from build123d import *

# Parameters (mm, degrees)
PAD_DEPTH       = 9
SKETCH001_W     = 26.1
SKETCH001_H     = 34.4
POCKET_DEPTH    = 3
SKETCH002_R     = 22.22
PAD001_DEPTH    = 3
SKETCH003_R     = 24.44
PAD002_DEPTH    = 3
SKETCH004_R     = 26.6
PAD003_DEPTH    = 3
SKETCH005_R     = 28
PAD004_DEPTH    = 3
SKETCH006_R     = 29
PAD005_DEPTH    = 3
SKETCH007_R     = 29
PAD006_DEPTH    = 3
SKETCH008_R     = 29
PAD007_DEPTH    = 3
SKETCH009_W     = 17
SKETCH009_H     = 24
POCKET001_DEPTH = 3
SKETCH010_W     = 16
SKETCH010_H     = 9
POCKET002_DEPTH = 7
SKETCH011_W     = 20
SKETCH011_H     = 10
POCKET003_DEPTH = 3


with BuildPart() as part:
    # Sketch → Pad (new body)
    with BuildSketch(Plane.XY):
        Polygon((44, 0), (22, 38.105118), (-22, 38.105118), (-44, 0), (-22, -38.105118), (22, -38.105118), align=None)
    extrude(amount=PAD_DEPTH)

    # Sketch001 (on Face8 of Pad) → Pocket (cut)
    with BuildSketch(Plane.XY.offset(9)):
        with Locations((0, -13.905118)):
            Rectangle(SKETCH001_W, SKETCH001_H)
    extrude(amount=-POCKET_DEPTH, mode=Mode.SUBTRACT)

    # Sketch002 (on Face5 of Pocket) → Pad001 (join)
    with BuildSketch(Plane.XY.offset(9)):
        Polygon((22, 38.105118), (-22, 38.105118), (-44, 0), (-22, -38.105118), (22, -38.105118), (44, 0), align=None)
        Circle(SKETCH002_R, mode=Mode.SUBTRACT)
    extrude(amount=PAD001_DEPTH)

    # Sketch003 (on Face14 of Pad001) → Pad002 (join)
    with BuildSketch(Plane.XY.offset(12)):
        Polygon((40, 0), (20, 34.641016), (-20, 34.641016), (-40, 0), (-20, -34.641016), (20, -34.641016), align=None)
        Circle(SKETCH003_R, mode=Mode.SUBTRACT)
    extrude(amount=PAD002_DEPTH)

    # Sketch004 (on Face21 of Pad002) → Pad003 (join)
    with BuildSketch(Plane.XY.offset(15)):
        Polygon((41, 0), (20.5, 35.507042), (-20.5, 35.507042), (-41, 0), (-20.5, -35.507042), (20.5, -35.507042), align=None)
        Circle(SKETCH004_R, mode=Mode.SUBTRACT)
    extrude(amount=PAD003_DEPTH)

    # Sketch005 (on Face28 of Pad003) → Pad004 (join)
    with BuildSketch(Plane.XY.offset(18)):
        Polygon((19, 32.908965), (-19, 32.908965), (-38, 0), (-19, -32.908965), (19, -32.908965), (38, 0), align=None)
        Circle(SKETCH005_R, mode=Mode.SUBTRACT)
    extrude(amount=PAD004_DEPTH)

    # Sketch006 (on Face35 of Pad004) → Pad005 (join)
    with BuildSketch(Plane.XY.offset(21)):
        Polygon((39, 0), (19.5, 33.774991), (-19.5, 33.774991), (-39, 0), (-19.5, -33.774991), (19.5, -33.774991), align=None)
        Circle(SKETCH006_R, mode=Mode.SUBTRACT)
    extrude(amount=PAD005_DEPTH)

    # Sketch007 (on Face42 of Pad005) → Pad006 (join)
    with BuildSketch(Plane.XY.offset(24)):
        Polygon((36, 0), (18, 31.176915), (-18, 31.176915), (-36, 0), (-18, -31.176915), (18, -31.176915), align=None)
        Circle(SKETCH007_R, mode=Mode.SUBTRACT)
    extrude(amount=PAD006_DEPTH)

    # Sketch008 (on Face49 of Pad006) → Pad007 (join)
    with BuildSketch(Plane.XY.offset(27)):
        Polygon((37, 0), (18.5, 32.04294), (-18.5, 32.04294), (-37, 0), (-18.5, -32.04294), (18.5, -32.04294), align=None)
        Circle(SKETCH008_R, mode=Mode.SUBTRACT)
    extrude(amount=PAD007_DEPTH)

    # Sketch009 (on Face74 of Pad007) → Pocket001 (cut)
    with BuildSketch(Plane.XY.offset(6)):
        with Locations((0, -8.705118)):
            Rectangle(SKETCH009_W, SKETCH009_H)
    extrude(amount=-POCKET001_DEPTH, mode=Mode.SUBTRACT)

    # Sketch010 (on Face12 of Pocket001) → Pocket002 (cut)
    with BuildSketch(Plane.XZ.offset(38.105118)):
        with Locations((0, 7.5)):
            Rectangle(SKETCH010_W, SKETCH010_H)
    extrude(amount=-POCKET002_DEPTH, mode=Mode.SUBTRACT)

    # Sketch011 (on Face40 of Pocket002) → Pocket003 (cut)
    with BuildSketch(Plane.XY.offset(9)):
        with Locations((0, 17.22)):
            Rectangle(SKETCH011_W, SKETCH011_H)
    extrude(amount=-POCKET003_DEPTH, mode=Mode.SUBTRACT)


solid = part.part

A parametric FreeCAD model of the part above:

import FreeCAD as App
import Part
import Sketcher
Q = App.Units.Quantity

doc = App.newDocument("Part")
params = doc.addObject("Spreadsheet::Sheet", "Params")
for row, (alias, value) in enumerate([
    ("sketch1_width", "44 mm"),
    ("sketch1_length", "44 mm"),
    ("pad1_length", "9 mm"),
    ("sketch2_width", "26.1 mm"),
    ("sketch2_height", "34.4 mm"),
    ("pocket1_length", "3 mm"),
    ("sketch3_diameter", "44.44 mm"),
    ("sketch3_width", "44 mm"),
    ("sketch3_length", "44 mm"),
    ("pad2_length", "3 mm"),
    ("sketch4_diameter", "48.88 mm"),
    ("sketch4_width", "40 mm"),
    ("sketch4_length", "40 mm"),
    ("pad3_length", "3 mm"),
    ("sketch5_diameter", "53.2 mm"),
    ("sketch5_width", "41 mm"),
    ("sketch5_length", "41 mm"),
    ("pad4_length", "3 mm"),
    ("sketch6_diameter", "56 mm"),
    ("sketch6_width", "38 mm"),
    ("sketch6_length", "38 mm"),
    ("pad5_length", "3 mm"),
    ("sketch7_diameter", "58 mm"),
    ("sketch7_width", "39 mm"),
    ("sketch7_length", "39 mm"),
    ("pad6_length", "3 mm"),
    ("sketch8_diameter", "58 mm"),
    ("sketch8_width", "36 mm"),
    ("sketch8_length", "36 mm"),
    ("pad7_length", "3 mm"),
    ("sketch9_diameter", "58 mm"),
    ("sketch9_width", "37 mm"),
    ("sketch9_length", "37 mm"),
    ("pad8_length", "3 mm"),
    ("sketch10_width", "17 mm"),
    ("sketch10_height", "24 mm"),
    ("pocket2_length", "3 mm"),
    ("sketch11_width", "16 mm"),
    ("sketch11_height", "9 mm"),
    ("pocket3_length", "7 mm"),
    ("sketch12_width", "20 mm"),
    ("sketch12_height", "10 mm"),
    ("pocket4_length", "3 mm"),
], start=1):
    params.set(f"A{row}", alias)
    params.set(f"B{row}", "=" + value)
    params.setAlias(f"B{row}", alias)

body = doc.addObject("PartDesign::Body", "Body")

sketch1 = body.newObject("Sketcher::SketchObject", "Sketch")
sketch1.AttachmentSupport = (doc.getObject("XY_Plane"), [""])
sketch1.MapMode = "FlatFace"
sketch1.addGeometry([
    Part.LineSegment(App.Vector(44, 0, 0), App.Vector(22, 38, 0)),
    Part.LineSegment(App.Vector(22, 38, 0), App.Vector(-22, 38, 0)),
    Part.LineSegment(App.Vector(-22, 38, 0), App.Vector(-44, 0, 0)),
    Part.LineSegment(App.Vector(-44, 0, 0), App.Vector(-22, -38, 0)),
    Part.LineSegment(App.Vector(-22, -38, 0), App.Vector(22, -38, 0)),
    Part.LineSegment(App.Vector(22, -38, 0), App.Vector(44, 0, 0)),
], False)
sketch1.addConstraint([
    Sketcher.Constraint("Coincident", 0, 2, 1, 1),
    Sketcher.Constraint("Coincident", 1, 2, 2, 1),
    Sketcher.Constraint("Coincident", 2, 2, 3, 1),
    Sketcher.Constraint("Coincident", 3, 2, 4, 1),
    Sketcher.Constraint("Coincident", 4, 2, 5, 1),
    Sketcher.Constraint("Coincident", 5, 2, 0, 1),
    Sketcher.Constraint("Horizontal", 1),
    Sketcher.Constraint("Horizontal", 4),
    Sketcher.Constraint("Symmetric", 0, 2, 3, 2, -1, 1),
    Sketcher.Constraint("Symmetric", 2, 2, 5, 2, -1, 1),
    Sketcher.Constraint("PointOnObject", 2, 2, -1),
    Sketcher.Constraint("Parallel", 2, 5),
    Sketcher.Constraint("Vertical", 1, 2, 3, 2),
    Sketcher.Constraint("DistanceX", 1, 2, 1, 1, Q("44 mm")),
    Sketcher.Constraint("Angle", 0, Q("120 deg")),
    Sketcher.Constraint("Distance", 0, Q("44 mm")),
])
sketch1.setExpression("Constraints[13]", "Params.sketch1_width")
sketch1.setExpression("Constraints[15]", "Params.sketch1_length")
pad1 = body.newObject("PartDesign::Pad", "Pad")
pad1.Profile = sketch1
pad1.setExpression("Length", "Params.pad1_length")

sketch2 = body.newObject("Sketcher::SketchObject", "Sketch001")
sketch2.AttachmentSupport = (doc.getObject("XY_Plane"), [""])
sketch2.MapMode = "FlatFace"
sketch2.AttachmentOffset = App.Placement(App.Vector(0, 0, 9), App.Rotation())
sketch2.addGeometry([
    Part.LineSegment(App.Vector(-13, 3, 0), App.Vector(-13, -31, 0)),
    Part.LineSegment(App.Vector(-13, -31, 0), App.Vector(13, -31, 0)),
    Part.LineSegment(App.Vector(13, -31, 0), App.Vector(13, 3, 0)),
    Part.LineSegment(App.Vector(13, 3, 0), App.Vector(-13, 3, 0)),
], False)
sketch2.addConstraint([
    Sketcher.Constraint("Coincident", 0, 2, 1, 1),
    Sketcher.Constraint("Coincident", 1, 2, 2, 1),
    Sketcher.Constraint("Coincident", 2, 2, 3, 1),
    Sketcher.Constraint("Coincident", 3, 2, 0, 1),
    Sketcher.Constraint("Vertical", 0),
    Sketcher.Constraint("Horizontal", 1),
    Sketcher.Constraint("Vertical", 2),
    Sketcher.Constraint("Horizontal", 3),
    Sketcher.Constraint("DistanceX", 1, 1, 1, 2, Q("26.1 mm")),
    Sketcher.Constraint("DistanceY", 0, 2, 0, 1, Q("34.4 mm")),
    Sketcher.Constraint("DistanceX", 0, 2, -1, 1, Q("13.05 mm")),
    Sketcher.Constraint("DistanceY", 0, 2, -1, 1, Q("31.105118 mm")),
])
sketch2.setExpression("Constraints[8]", "Params.sketch2_width")
sketch2.setExpression("Constraints[9]", "Params.sketch2_height")
pocket1 = body.newObject("PartDesign::Pocket", "Pocket")
pocket1.Profile = sketch2
pocket1.setExpression("Length", "Params.pocket1_length")

sketch3 = body.newObject("Sketcher::SketchObject", "Sketch002")
sketch3.AttachmentSupport = (doc.getObject("XY_Plane"), [""])
sketch3.MapMode = "FlatFace"
sketch3.AttachmentOffset = App.Placement(App.Vector(0, 0, 9), App.Rotation())
sketch3.addGeometry([
    Part.LineSegment(App.Vector(22, 38, 0), App.Vector(-22, 38, 0)),
    Part.LineSegment(App.Vector(-22, 38, 0), App.Vector(-44, 0, 0)),
    Part.LineSegment(App.Vector(-44, 0, 0), App.Vector(-22, -38, 0)),
    Part.LineSegment(App.Vector(-22, -38, 0), App.Vector(22, -38, 0)),
    Part.LineSegment(App.Vector(22, -38, 0), App.Vector(44, 0, 0)),
    Part.LineSegment(App.Vector(44, 0, 0), App.Vector(22, 38, 0)),
    Part.Circle(App.Vector(0, 0, 0), App.Vector(0, 0, 1), 22),
], False)
sketch3.addConstraint([
    Sketcher.Constraint("Coincident", 0, 2, 1, 1),
    Sketcher.Constraint("Coincident", 1, 2, 2, 1),
    Sketcher.Constraint("Coincident", 2, 2, 3, 1),
    Sketcher.Constraint("Coincident", 3, 2, 4, 1),
    Sketcher.Constraint("Coincident", 4, 2, 5, 1),
    Sketcher.Constraint("Coincident", 5, 2, 0, 1),
    Sketcher.Constraint("Horizontal", 0),
    Sketcher.Constraint("Horizontal", 3),
    Sketcher.Constraint("Coincident", 6, 3, -1, 1),
    Sketcher.Constraint("Symmetric", 0, 2, 3, 2, -1, 1),
    Sketcher.Constraint("Symmetric", 1, 2, 4, 2, -1, 1),
    Sketcher.Constraint("PointOnObject", 1, 2, -1),
    Sketcher.Constraint("Parallel", 2, 5),
    Sketcher.Constraint("Vertical", 0, 2, 2, 2),
    Sketcher.Constraint("Diameter", 6, Q("44.44 mm")),
    Sketcher.Constraint("DistanceX", 0, 2, 0, 1, Q("44 mm")),
    Sketcher.Constraint("Angle", 1, Q("-120 deg")),
    Sketcher.Constraint("Distance", 1, Q("44 mm")),
])
sketch3.setExpression("Constraints[14]", "Params.sketch3_diameter")
sketch3.setExpression("Constraints[15]", "Params.sketch3_width")
sketch3.setExpression("Constraints[17]", "Params.sketch3_length")
pad2 = body.newObject("PartDesign::Pad", "Pad001")
pad2.Profile = sketch3
pad2.setExpression("Length", "Params.pad2_length")

sketch4 = body.newObject("Sketcher::SketchObject", "Sketch003")
sketch4.AttachmentSupport = (doc.getObject("XY_Plane"), [""])
sketch4.MapMode = "FlatFace"
sketch4.AttachmentOffset = App.Placement(App.Vector(0, 0, 12), App.Rotation())
sketch4.addGeometry([
    Part.LineSegment(App.Vector(40, 0, 0), App.Vector(20, 35, 0)),
    Part.LineSegment(App.Vector(20, 35, 0), App.Vector(-20, 35, 0)),
    Part.LineSegment(App.Vector(-20, 35, 0), App.Vector(-40, 0, 0)),
    Part.LineSegment(App.Vector(-40, 0, 0), App.Vector(-20, -35, 0)),
    Part.LineSegment(App.Vector(-20, -35, 0), App.Vector(20, -35, 0)),
    Part.LineSegment(App.Vector(20, -35, 0), App.Vector(40, 0, 0)),
    Part.Circle(App.Vector(0, 0, 0), App.Vector(0, 0, 1), 24),
], False)
sketch4.addConstraint([
    Sketcher.Constraint("Coincident", 0, 2, 1, 1),
    Sketcher.Constraint("Coincident", 1, 2, 2, 1),
    Sketcher.Constraint("Coincident", 2, 2, 3, 1),
    Sketcher.Constraint("Coincident", 3, 2, 4, 1),
    Sketcher.Constraint("Coincident", 4, 2, 5, 1),
    Sketcher.Constraint("Coincident", 5, 2, 0, 1),
    Sketcher.Constraint("Horizontal", 1),
    Sketcher.Constraint("Horizontal", 4),
    Sketcher.Constraint("Coincident", 6, 3, -1, 1),
    Sketcher.Constraint("Symmetric", 0, 2, 3, 2, -1, 1),
    Sketcher.Constraint("Symmetric", 2, 2, 5, 2, -1, 1),
    Sketcher.Constraint("PointOnObject", 2, 2, -1),
    Sketcher.Constraint("Parallel", 2, 5),
    Sketcher.Constraint("Vertical", 1, 2, 3, 2),
    Sketcher.Constraint("Diameter", 6, Q("48.88 mm")),
    Sketcher.Constraint("DistanceX", 1, 2, 1, 1, Q("40 mm")),
    Sketcher.Constraint("Angle", 0, Q("120 deg")),
    Sketcher.Constraint("Distance", 0, Q("40 mm")),
])
sketch4.setExpression("Constraints[14]", "Params.sketch4_diameter")
sketch4.setExpression("Constraints[15]", "Params.sketch4_width")
sketch4.setExpression("Constraints[17]", "Params.sketch4_length")
pad3 = body.newObject("PartDesign::Pad", "Pad002")
pad3.Profile = sketch4
pad3.setExpression("Length", "Params.pad3_length")

sketch5 = body.newObject("Sketcher::SketchObject", "Sketch004")
sketch5.AttachmentSupport = (doc.getObject("XY_Plane"), [""])
sketch5.MapMode = "FlatFace"
sketch5.AttachmentOffset = App.Placement(App.Vector(0, 0, 15), App.Rotation())
sketch5.addGeometry([
    Part.LineSegment(App.Vector(41, 0, 0), App.Vector(20, 36, 0)),
    Part.LineSegment(App.Vector(20, 36, 0), App.Vector(-20, 36, 0)),
    Part.LineSegment(App.Vector(-20, 36, 0), App.Vector(-41, 0, 0)),
    Part.LineSegment(App.Vector(-41, 0, 0), App.Vector(-20, -36, 0)),
    Part.LineSegment(App.Vector(-20, -36, 0), App.Vector(20, -36, 0)),
    Part.LineSegment(App.Vector(20, -36, 0), App.Vector(41, 0, 0)),
    Part.Circle(App.Vector(0, 0, 0), App.Vector(0, 0, 1), 27),
], False)
sketch5.addConstraint([
    Sketcher.Constraint("Coincident", 0, 2, 1, 1),
    Sketcher.Constraint("Coincident", 1, 2, 2, 1),
    Sketcher.Constraint("Coincident", 2, 2, 3, 1),
    Sketcher.Constraint("Coincident", 3, 2, 4, 1),
    Sketcher.Constraint("Coincident", 4, 2, 5, 1),
    Sketcher.Constraint("Coincident", 5, 2, 0, 1),
    Sketcher.Constraint("Horizontal", 1),
    Sketcher.Constraint("Horizontal", 4),
    Sketcher.Constraint("Coincident", 6, 3, -1, 1),
    Sketcher.Constraint("Symmetric", 0, 2, 3, 2, -1, 1),
    Sketcher.Constraint("Symmetric", 2, 2, 5, 2, -1, 1),
    Sketcher.Constraint("PointOnObject", 2, 2, -1),
    Sketcher.Constraint("Parallel", 2, 5),
    Sketcher.Constraint("Vertical", 1, 2, 3, 2),
    Sketcher.Constraint("Diameter", 6, Q("53.2 mm")),
    Sketcher.Constraint("DistanceX", 1, 2, 1, 1, Q("41 mm")),
    Sketcher.Constraint("Angle", 0, Q("120 deg")),
    Sketcher.Constraint("Distance", 0, Q("41 mm")),
])
sketch5.setExpression("Constraints[14]", "Params.sketch5_diameter")
sketch5.setExpression("Constraints[15]", "Params.sketch5_width")
sketch5.setExpression("Constraints[17]", "Params.sketch5_length")
pad4 = body.newObject("PartDesign::Pad", "Pad003")
pad4.Profile = sketch5
pad4.setExpression("Length", "Params.pad4_length")

sketch6 = body.newObject("Sketcher::SketchObject", "Sketch005")
sketch6.AttachmentSupport = (doc.getObject("XY_Plane"), [""])
sketch6.MapMode = "FlatFace"
sketch6.AttachmentOffset = App.Placement(App.Vector(0, 0, 18), App.Rotation())
sketch6.addGeometry([
    Part.LineSegment(App.Vector(19, 33, 0), App.Vector(-19, 33, 0)),
    Part.LineSegment(App.Vector(-19, 33, 0), App.Vector(-38, 0, 0)),
    Part.LineSegment(App.Vector(-38, 0, 0), App.Vector(-19, -33, 0)),
    Part.LineSegment(App.Vector(-19, -33, 0), App.Vector(19, -33, 0)),
    Part.LineSegment(App.Vector(19, -33, 0), App.Vector(38, 0, 0)),
    Part.LineSegment(App.Vector(38, 0, 0), App.Vector(19, 33, 0)),
    Part.Circle(App.Vector(0, 0, 0), App.Vector(0, 0, 1), 28),
], False)
sketch6.addConstraint([
    Sketcher.Constraint("Coincident", 0, 2, 1, 1),
    Sketcher.Constraint("Coincident", 1, 2, 2, 1),
    Sketcher.Constraint("Coincident", 2, 2, 3, 1),
    Sketcher.Constraint("Coincident", 3, 2, 4, 1),
    Sketcher.Constraint("Coincident", 4, 2, 5, 1),
    Sketcher.Constraint("Coincident", 5, 2, 0, 1),
    Sketcher.Constraint("Horizontal", 0),
    Sketcher.Constraint("Horizontal", 3),
    Sketcher.Constraint("Coincident", 6, 3, -1, 1),
    Sketcher.Constraint("Symmetric", 0, 2, 3, 2, -1, 1),
    Sketcher.Constraint("Symmetric", 1, 2, 4, 2, -1, 1),
    Sketcher.Constraint("PointOnObject", 1, 2, -1),
    Sketcher.Constraint("Parallel", 2, 5),
    Sketcher.Constraint("Vertical", 0, 2, 2, 2),
    Sketcher.Constraint("Diameter", 6, Q("56 mm")),
    Sketcher.Constraint("DistanceX", 0, 2, 0, 1, Q("38 mm")),
    Sketcher.Constraint("Angle", 1, Q("-120 deg")),
    Sketcher.Constraint("Distance", 1, Q("38 mm")),
])
sketch6.setExpression("Constraints[14]", "Params.sketch6_diameter")
sketch6.setExpression("Constraints[15]", "Params.sketch6_width")
sketch6.setExpression("Constraints[17]", "Params.sketch6_length")
pad5 = body.newObject("PartDesign::Pad", "Pad004")
pad5.Profile = sketch6
pad5.setExpression("Length", "Params.pad5_length")

sketch7 = body.newObject("Sketcher::SketchObject", "Sketch006")
sketch7.AttachmentSupport = (doc.getObject("XY_Plane"), [""])
sketch7.MapMode = "FlatFace"
sketch7.AttachmentOffset = App.Placement(App.Vector(0, 0, 21), App.Rotation())
sketch7.addGeometry([
    Part.LineSegment(App.Vector(39, 0, 0), App.Vector(20, 34, 0)),
    Part.LineSegment(App.Vector(20, 34, 0), App.Vector(-20, 34, 0)),
    Part.LineSegment(App.Vector(-20, 34, 0), App.Vector(-39, 0, 0)),
    Part.LineSegment(App.Vector(-39, 0, 0), App.Vector(-20, -34, 0)),
    Part.LineSegment(App.Vector(-20, -34, 0), App.Vector(20, -34, 0)),
    Part.LineSegment(App.Vector(20, -34, 0), App.Vector(39, 0, 0)),
    Part.Circle(App.Vector(0, 0, 0), App.Vector(0, 0, 1), 29),
], False)
sketch7.addConstraint([
    Sketcher.Constraint("Coincident", 0, 2, 1, 1),
    Sketcher.Constraint("Coincident", 1, 2, 2, 1),
    Sketcher.Constraint("Coincident", 2, 2, 3, 1),
    Sketcher.Constraint("Coincident", 3, 2, 4, 1),
    Sketcher.Constraint("Coincident", 4, 2, 5, 1),
    Sketcher.Constraint("Coincident", 5, 2, 0, 1),
    Sketcher.Constraint("Horizontal", 1),
    Sketcher.Constraint("Horizontal", 4),
    Sketcher.Constraint("Coincident", 6, 3, -1, 1),
    Sketcher.Constraint("Symmetric", 0, 2, 3, 2, -1, 1),
    Sketcher.Constraint("Symmetric", 2, 2, 5, 2, -1, 1),
    Sketcher.Constraint("PointOnObject", 2, 2, -1),
    Sketcher.Constraint("Parallel", 2, 5),
    Sketcher.Constraint("Vertical", 1, 2, 3, 2),
    Sketcher.Constraint("Diameter", 6, Q("58 mm")),
    Sketcher.Constraint("DistanceX", 1, 2, 1, 1, Q("39 mm")),
    Sketcher.Constraint("Angle", 0, Q("120 deg")),
    Sketcher.Constraint("Distance", 0, Q("39 mm")),
])
sketch7.setExpression("Constraints[14]", "Params.sketch7_diameter")
sketch7.setExpression("Constraints[15]", "Params.sketch7_width")
sketch7.setExpression("Constraints[17]", "Params.sketch7_length")
pad6 = body.newObject("PartDesign::Pad", "Pad005")
pad6.Profile = sketch7
pad6.setExpression("Length", "Params.pad6_length")

sketch8 = body.newObject("Sketcher::SketchObject", "Sketch007")
sketch8.AttachmentSupport = (doc.getObject("XY_Plane"), [""])
sketch8.MapMode = "FlatFace"
sketch8.AttachmentOffset = App.Placement(App.Vector(0, 0, 24), App.Rotation())
sketch8.addGeometry([
    Part.LineSegment(App.Vector(36, 0, 0), App.Vector(18, 31, 0)),
    Part.LineSegment(App.Vector(18, 31, 0), App.Vector(-18, 31, 0)),
    Part.LineSegment(App.Vector(-18, 31, 0), App.Vector(-36, 0, 0)),
    Part.LineSegment(App.Vector(-36, 0, 0), App.Vector(-18, -31, 0)),
    Part.LineSegment(App.Vector(-18, -31, 0), App.Vector(18, -31, 0)),
    Part.LineSegment(App.Vector(18, -31, 0), App.Vector(36, 0, 0)),
    Part.Circle(App.Vector(0, 0, 0), App.Vector(0, 0, 1), 29),
], False)
sketch8.addConstraint([
    Sketcher.Constraint("Coincident", 0, 2, 1, 1),
    Sketcher.Constraint("Coincident", 1, 2, 2, 1),
    Sketcher.Constraint("Coincident", 2, 2, 3, 1),
    Sketcher.Constraint("Coincident", 3, 2, 4, 1),
    Sketcher.Constraint("Coincident", 4, 2, 5, 1),
    Sketcher.Constraint("Coincident", 5, 2, 0, 1),
    Sketcher.Constraint("Horizontal", 1),
    Sketcher.Constraint("Horizontal", 4),
    Sketcher.Constraint("Coincident", 6, 3, -1, 1),
    Sketcher.Constraint("Symmetric", 0, 2, 3, 2, -1, 1),
    Sketcher.Constraint("Symmetric", 2, 2, 5, 2, -1, 1),
    Sketcher.Constraint("PointOnObject", 2, 2, -1),
    Sketcher.Constraint("Parallel", 2, 5),
    Sketcher.Constraint("Vertical", 1, 2, 3, 2),
    Sketcher.Constraint("Diameter", 6, Q("58 mm")),
    Sketcher.Constraint("DistanceX", 1, 2, 1, 1, Q("36 mm")),
    Sketcher.Constraint("Angle", 0, Q("120 deg")),
    Sketcher.Constraint("Distance", 0, Q("36 mm")),
])
sketch8.setExpression("Constraints[14]", "Params.sketch8_diameter")
sketch8.setExpression("Constraints[15]", "Params.sketch8_width")
sketch8.setExpression("Constraints[17]", "Params.sketch8_length")
pad7 = body.newObject("PartDesign::Pad", "Pad006")
pad7.Profile = sketch8
pad7.setExpression("Length", "Params.pad7_length")

sketch9 = body.newObject("Sketcher::SketchObject", "Sketch008")
sketch9.AttachmentSupport = (doc.getObject("XY_Plane"), [""])
sketch9.MapMode = "FlatFace"
sketch9.AttachmentOffset = App.Placement(App.Vector(0, 0, 27), App.Rotation())
sketch9.addGeometry([
    Part.LineSegment(App.Vector(37, 0, 0), App.Vector(18, 32, 0)),
    Part.LineSegment(App.Vector(18, 32, 0), App.Vector(-18, 32, 0)),
    Part.LineSegment(App.Vector(-18, 32, 0), App.Vector(-37, 0, 0)),
    Part.LineSegment(App.Vector(-37, 0, 0), App.Vector(-18, -32, 0)),
    Part.LineSegment(App.Vector(-18, -32, 0), App.Vector(18, -32, 0)),
    Part.LineSegment(App.Vector(18, -32, 0), App.Vector(37, 0, 0)),
    Part.Circle(App.Vector(0, 0, 0), App.Vector(0, 0, 1), 29),
], False)
sketch9.addConstraint([
    Sketcher.Constraint("Coincident", 0, 2, 1, 1),
    Sketcher.Constraint("Coincident", 1, 2, 2, 1),
    Sketcher.Constraint("Coincident", 2, 2, 3, 1),
    Sketcher.Constraint("Coincident", 3, 2, 4, 1),
    Sketcher.Constraint("Coincident", 4, 2, 5, 1),
    Sketcher.Constraint("Coincident", 5, 2, 0, 1),
    Sketcher.Constraint("Horizontal", 1),
    Sketcher.Constraint("Horizontal", 4),
    Sketcher.Constraint("Coincident", 6, 3, -1, 1),
    Sketcher.Constraint("Symmetric", 0, 2, 3, 2, -1, 1),
    Sketcher.Constraint("Symmetric", 2, 2, 5, 2, -1, 1),
    Sketcher.Constraint("PointOnObject", 2, 2, -1),
    Sketcher.Constraint("Parallel", 2, 5),
    Sketcher.Constraint("Vertical", 1, 2, 3, 2),
    Sketcher.Constraint("Diameter", 6, Q("58 mm")),
    Sketcher.Constraint("DistanceX", 1, 2, 1, 1, Q("37 mm")),
    Sketcher.Constraint("Angle", 0, Q("120 deg")),
    Sketcher.Constraint("Distance", 0, Q("37 mm")),
])
sketch9.setExpression("Constraints[14]", "Params.sketch9_diameter")
sketch9.setExpression("Constraints[15]", "Params.sketch9_width")
sketch9.setExpression("Constraints[17]", "Params.sketch9_length")
pad8 = body.newObject("PartDesign::Pad", "Pad007")
pad8.Profile = sketch9
pad8.setExpression("Length", "Params.pad8_length")

sketch10 = body.newObject("Sketcher::SketchObject", "Sketch009")
sketch10.AttachmentSupport = (doc.getObject("XY_Plane"), [""])
sketch10.MapMode = "FlatFace"
sketch10.AttachmentOffset = App.Placement(App.Vector(0, 0, 6), App.Rotation())
sketch10.addGeometry([
    Part.LineSegment(App.Vector(-8, 3, 0), App.Vector(-8, -21, 0)),
    Part.LineSegment(App.Vector(-8, -21, 0), App.Vector(8, -21, 0)),
    Part.LineSegment(App.Vector(8, -21, 0), App.Vector(8, 3, 0)),
    Part.LineSegment(App.Vector(8, 3, 0), App.Vector(-8, 3, 0)),
], False)
sketch10.addConstraint([
    Sketcher.Constraint("Coincident", 0, 2, 1, 1),
    Sketcher.Constraint("Coincident", 1, 2, 2, 1),
    Sketcher.Constraint("Coincident", 2, 2, 3, 1),
    Sketcher.Constraint("Coincident", 3, 2, 0, 1),
    Sketcher.Constraint("Vertical", 0),
    Sketcher.Constraint("Horizontal", 1),
    Sketcher.Constraint("Vertical", 2),
    Sketcher.Constraint("Horizontal", 3),
    Sketcher.Constraint("DistanceX", 1, 1, 1, 2, Q("17 mm")),
    Sketcher.Constraint("DistanceY", 0, 2, 0, 1, Q("24 mm")),
    Sketcher.Constraint("DistanceX", 0, 2, -1, 1, Q("8.5 mm")),
    Sketcher.Constraint("DistanceY", -1, 1, 2, 2, Q("3.294882 mm")),
])
sketch10.setExpression("Constraints[8]", "Params.sketch10_width")
sketch10.setExpression("Constraints[9]", "Params.sketch10_height")
pocket2 = body.newObject("PartDesign::Pocket", "Pocket001")
pocket2.Profile = sketch10
pocket2.setExpression("Length", "Params.pocket2_length")

sketch11 = body.newObject("Sketcher::SketchObject", "Sketch010")
sketch11.AttachmentSupport = (doc.getObject("XZ_Plane"), [""])
sketch11.MapMode = "FlatFace"
sketch11.AttachmentOffset = App.Placement(App.Vector(0, 0, 38.105118), App.Rotation())
sketch11.addGeometry([
    Part.LineSegment(App.Vector(-8, 12, 0), App.Vector(-8, 3, 0)),
    Part.LineSegment(App.Vector(-8, 3, 0), App.Vector(8, 3, 0)),
    Part.LineSegment(App.Vector(8, 3, 0), App.Vector(8, 12, 0)),
    Part.LineSegment(App.Vector(8, 12, 0), App.Vector(-8, 12, 0)),
], False)
sketch11.addConstraint([
    Sketcher.Constraint("Coincident", 0, 2, 1, 1),
    Sketcher.Constraint("Coincident", 1, 2, 2, 1),
    Sketcher.Constraint("Coincident", 2, 2, 3, 1),
    Sketcher.Constraint("Coincident", 3, 2, 0, 1),
    Sketcher.Constraint("Vertical", 0),
    Sketcher.Constraint("Horizontal", 1),
    Sketcher.Constraint("Vertical", 2),
    Sketcher.Constraint("Horizontal", 3),
    Sketcher.Constraint("DistanceX", 1, 1, 1, 2, Q("16 mm")),
    Sketcher.Constraint("DistanceY", 0, 2, 0, 1, Q("9 mm")),
    Sketcher.Constraint("DistanceX", 0, 2, -1, 1, Q("8 mm")),
    Sketcher.Constraint("DistanceY", -1, 1, 0, 2, Q("3 mm")),
])
sketch11.setExpression("Constraints[8]", "Params.sketch11_width")
sketch11.setExpression("Constraints[9]", "Params.sketch11_height")
pocket3 = body.newObject("PartDesign::Pocket", "Pocket002")
pocket3.Profile = sketch11
pocket3.setExpression("Length", "Params.pocket3_length")

sketch12 = body.newObject("Sketcher::SketchObject", "Sketch011")
sketch12.AttachmentSupport = (doc.getObject("XY_Plane"), [""])
sketch12.MapMode = "FlatFace"
sketch12.AttachmentOffset = App.Placement(App.Vector(0, 0, 9), App.Rotation())
sketch12.addGeometry([
    Part.LineSegment(App.Vector(-10, 22, 0), App.Vector(-10, 12, 0)),
    Part.LineSegment(App.Vector(-10, 12, 0), App.Vector(10, 12, 0)),
    Part.LineSegment(App.Vector(10, 12, 0), App.Vector(10, 22, 0)),
    Part.LineSegment(App.Vector(10, 22, 0), App.Vector(-10, 22, 0)),
], False)
sketch12.addConstraint([
    Sketcher.Constraint("Coincident", 0, 2, 1, 1),
    Sketcher.Constraint("Coincident", 1, 2, 2, 1),
    Sketcher.Constraint("Coincident", 2, 2, 3, 1),
    Sketcher.Constraint("Coincident", 3, 2, 0, 1),
    Sketcher.Constraint("Vertical", 0),
    Sketcher.Constraint("Horizontal", 1),
    Sketcher.Constraint("Vertical", 2),
    Sketcher.Constraint("Horizontal", 3),
    Sketcher.Constraint("DistanceX", 1, 1, 1, 2, Q("20 mm")),
    Sketcher.Constraint("DistanceY", 0, 2, 0, 1, Q("10 mm")),
    Sketcher.Constraint("DistanceX", 0, 2, -1, 1, Q("10 mm")),
    Sketcher.Constraint("DistanceY", -1, 1, 0, 2, Q("12.22 mm")),
])
sketch12.setExpression("Constraints[8]", "Params.sketch12_width")
sketch12.setExpression("Constraints[9]", "Params.sketch12_height")
pocket4 = body.newObject("PartDesign::Pocket", "Pocket003")
pocket4.Profile = sketch12
pocket4.setExpression("Length", "Params.pocket4_length")

doc.recompute()
